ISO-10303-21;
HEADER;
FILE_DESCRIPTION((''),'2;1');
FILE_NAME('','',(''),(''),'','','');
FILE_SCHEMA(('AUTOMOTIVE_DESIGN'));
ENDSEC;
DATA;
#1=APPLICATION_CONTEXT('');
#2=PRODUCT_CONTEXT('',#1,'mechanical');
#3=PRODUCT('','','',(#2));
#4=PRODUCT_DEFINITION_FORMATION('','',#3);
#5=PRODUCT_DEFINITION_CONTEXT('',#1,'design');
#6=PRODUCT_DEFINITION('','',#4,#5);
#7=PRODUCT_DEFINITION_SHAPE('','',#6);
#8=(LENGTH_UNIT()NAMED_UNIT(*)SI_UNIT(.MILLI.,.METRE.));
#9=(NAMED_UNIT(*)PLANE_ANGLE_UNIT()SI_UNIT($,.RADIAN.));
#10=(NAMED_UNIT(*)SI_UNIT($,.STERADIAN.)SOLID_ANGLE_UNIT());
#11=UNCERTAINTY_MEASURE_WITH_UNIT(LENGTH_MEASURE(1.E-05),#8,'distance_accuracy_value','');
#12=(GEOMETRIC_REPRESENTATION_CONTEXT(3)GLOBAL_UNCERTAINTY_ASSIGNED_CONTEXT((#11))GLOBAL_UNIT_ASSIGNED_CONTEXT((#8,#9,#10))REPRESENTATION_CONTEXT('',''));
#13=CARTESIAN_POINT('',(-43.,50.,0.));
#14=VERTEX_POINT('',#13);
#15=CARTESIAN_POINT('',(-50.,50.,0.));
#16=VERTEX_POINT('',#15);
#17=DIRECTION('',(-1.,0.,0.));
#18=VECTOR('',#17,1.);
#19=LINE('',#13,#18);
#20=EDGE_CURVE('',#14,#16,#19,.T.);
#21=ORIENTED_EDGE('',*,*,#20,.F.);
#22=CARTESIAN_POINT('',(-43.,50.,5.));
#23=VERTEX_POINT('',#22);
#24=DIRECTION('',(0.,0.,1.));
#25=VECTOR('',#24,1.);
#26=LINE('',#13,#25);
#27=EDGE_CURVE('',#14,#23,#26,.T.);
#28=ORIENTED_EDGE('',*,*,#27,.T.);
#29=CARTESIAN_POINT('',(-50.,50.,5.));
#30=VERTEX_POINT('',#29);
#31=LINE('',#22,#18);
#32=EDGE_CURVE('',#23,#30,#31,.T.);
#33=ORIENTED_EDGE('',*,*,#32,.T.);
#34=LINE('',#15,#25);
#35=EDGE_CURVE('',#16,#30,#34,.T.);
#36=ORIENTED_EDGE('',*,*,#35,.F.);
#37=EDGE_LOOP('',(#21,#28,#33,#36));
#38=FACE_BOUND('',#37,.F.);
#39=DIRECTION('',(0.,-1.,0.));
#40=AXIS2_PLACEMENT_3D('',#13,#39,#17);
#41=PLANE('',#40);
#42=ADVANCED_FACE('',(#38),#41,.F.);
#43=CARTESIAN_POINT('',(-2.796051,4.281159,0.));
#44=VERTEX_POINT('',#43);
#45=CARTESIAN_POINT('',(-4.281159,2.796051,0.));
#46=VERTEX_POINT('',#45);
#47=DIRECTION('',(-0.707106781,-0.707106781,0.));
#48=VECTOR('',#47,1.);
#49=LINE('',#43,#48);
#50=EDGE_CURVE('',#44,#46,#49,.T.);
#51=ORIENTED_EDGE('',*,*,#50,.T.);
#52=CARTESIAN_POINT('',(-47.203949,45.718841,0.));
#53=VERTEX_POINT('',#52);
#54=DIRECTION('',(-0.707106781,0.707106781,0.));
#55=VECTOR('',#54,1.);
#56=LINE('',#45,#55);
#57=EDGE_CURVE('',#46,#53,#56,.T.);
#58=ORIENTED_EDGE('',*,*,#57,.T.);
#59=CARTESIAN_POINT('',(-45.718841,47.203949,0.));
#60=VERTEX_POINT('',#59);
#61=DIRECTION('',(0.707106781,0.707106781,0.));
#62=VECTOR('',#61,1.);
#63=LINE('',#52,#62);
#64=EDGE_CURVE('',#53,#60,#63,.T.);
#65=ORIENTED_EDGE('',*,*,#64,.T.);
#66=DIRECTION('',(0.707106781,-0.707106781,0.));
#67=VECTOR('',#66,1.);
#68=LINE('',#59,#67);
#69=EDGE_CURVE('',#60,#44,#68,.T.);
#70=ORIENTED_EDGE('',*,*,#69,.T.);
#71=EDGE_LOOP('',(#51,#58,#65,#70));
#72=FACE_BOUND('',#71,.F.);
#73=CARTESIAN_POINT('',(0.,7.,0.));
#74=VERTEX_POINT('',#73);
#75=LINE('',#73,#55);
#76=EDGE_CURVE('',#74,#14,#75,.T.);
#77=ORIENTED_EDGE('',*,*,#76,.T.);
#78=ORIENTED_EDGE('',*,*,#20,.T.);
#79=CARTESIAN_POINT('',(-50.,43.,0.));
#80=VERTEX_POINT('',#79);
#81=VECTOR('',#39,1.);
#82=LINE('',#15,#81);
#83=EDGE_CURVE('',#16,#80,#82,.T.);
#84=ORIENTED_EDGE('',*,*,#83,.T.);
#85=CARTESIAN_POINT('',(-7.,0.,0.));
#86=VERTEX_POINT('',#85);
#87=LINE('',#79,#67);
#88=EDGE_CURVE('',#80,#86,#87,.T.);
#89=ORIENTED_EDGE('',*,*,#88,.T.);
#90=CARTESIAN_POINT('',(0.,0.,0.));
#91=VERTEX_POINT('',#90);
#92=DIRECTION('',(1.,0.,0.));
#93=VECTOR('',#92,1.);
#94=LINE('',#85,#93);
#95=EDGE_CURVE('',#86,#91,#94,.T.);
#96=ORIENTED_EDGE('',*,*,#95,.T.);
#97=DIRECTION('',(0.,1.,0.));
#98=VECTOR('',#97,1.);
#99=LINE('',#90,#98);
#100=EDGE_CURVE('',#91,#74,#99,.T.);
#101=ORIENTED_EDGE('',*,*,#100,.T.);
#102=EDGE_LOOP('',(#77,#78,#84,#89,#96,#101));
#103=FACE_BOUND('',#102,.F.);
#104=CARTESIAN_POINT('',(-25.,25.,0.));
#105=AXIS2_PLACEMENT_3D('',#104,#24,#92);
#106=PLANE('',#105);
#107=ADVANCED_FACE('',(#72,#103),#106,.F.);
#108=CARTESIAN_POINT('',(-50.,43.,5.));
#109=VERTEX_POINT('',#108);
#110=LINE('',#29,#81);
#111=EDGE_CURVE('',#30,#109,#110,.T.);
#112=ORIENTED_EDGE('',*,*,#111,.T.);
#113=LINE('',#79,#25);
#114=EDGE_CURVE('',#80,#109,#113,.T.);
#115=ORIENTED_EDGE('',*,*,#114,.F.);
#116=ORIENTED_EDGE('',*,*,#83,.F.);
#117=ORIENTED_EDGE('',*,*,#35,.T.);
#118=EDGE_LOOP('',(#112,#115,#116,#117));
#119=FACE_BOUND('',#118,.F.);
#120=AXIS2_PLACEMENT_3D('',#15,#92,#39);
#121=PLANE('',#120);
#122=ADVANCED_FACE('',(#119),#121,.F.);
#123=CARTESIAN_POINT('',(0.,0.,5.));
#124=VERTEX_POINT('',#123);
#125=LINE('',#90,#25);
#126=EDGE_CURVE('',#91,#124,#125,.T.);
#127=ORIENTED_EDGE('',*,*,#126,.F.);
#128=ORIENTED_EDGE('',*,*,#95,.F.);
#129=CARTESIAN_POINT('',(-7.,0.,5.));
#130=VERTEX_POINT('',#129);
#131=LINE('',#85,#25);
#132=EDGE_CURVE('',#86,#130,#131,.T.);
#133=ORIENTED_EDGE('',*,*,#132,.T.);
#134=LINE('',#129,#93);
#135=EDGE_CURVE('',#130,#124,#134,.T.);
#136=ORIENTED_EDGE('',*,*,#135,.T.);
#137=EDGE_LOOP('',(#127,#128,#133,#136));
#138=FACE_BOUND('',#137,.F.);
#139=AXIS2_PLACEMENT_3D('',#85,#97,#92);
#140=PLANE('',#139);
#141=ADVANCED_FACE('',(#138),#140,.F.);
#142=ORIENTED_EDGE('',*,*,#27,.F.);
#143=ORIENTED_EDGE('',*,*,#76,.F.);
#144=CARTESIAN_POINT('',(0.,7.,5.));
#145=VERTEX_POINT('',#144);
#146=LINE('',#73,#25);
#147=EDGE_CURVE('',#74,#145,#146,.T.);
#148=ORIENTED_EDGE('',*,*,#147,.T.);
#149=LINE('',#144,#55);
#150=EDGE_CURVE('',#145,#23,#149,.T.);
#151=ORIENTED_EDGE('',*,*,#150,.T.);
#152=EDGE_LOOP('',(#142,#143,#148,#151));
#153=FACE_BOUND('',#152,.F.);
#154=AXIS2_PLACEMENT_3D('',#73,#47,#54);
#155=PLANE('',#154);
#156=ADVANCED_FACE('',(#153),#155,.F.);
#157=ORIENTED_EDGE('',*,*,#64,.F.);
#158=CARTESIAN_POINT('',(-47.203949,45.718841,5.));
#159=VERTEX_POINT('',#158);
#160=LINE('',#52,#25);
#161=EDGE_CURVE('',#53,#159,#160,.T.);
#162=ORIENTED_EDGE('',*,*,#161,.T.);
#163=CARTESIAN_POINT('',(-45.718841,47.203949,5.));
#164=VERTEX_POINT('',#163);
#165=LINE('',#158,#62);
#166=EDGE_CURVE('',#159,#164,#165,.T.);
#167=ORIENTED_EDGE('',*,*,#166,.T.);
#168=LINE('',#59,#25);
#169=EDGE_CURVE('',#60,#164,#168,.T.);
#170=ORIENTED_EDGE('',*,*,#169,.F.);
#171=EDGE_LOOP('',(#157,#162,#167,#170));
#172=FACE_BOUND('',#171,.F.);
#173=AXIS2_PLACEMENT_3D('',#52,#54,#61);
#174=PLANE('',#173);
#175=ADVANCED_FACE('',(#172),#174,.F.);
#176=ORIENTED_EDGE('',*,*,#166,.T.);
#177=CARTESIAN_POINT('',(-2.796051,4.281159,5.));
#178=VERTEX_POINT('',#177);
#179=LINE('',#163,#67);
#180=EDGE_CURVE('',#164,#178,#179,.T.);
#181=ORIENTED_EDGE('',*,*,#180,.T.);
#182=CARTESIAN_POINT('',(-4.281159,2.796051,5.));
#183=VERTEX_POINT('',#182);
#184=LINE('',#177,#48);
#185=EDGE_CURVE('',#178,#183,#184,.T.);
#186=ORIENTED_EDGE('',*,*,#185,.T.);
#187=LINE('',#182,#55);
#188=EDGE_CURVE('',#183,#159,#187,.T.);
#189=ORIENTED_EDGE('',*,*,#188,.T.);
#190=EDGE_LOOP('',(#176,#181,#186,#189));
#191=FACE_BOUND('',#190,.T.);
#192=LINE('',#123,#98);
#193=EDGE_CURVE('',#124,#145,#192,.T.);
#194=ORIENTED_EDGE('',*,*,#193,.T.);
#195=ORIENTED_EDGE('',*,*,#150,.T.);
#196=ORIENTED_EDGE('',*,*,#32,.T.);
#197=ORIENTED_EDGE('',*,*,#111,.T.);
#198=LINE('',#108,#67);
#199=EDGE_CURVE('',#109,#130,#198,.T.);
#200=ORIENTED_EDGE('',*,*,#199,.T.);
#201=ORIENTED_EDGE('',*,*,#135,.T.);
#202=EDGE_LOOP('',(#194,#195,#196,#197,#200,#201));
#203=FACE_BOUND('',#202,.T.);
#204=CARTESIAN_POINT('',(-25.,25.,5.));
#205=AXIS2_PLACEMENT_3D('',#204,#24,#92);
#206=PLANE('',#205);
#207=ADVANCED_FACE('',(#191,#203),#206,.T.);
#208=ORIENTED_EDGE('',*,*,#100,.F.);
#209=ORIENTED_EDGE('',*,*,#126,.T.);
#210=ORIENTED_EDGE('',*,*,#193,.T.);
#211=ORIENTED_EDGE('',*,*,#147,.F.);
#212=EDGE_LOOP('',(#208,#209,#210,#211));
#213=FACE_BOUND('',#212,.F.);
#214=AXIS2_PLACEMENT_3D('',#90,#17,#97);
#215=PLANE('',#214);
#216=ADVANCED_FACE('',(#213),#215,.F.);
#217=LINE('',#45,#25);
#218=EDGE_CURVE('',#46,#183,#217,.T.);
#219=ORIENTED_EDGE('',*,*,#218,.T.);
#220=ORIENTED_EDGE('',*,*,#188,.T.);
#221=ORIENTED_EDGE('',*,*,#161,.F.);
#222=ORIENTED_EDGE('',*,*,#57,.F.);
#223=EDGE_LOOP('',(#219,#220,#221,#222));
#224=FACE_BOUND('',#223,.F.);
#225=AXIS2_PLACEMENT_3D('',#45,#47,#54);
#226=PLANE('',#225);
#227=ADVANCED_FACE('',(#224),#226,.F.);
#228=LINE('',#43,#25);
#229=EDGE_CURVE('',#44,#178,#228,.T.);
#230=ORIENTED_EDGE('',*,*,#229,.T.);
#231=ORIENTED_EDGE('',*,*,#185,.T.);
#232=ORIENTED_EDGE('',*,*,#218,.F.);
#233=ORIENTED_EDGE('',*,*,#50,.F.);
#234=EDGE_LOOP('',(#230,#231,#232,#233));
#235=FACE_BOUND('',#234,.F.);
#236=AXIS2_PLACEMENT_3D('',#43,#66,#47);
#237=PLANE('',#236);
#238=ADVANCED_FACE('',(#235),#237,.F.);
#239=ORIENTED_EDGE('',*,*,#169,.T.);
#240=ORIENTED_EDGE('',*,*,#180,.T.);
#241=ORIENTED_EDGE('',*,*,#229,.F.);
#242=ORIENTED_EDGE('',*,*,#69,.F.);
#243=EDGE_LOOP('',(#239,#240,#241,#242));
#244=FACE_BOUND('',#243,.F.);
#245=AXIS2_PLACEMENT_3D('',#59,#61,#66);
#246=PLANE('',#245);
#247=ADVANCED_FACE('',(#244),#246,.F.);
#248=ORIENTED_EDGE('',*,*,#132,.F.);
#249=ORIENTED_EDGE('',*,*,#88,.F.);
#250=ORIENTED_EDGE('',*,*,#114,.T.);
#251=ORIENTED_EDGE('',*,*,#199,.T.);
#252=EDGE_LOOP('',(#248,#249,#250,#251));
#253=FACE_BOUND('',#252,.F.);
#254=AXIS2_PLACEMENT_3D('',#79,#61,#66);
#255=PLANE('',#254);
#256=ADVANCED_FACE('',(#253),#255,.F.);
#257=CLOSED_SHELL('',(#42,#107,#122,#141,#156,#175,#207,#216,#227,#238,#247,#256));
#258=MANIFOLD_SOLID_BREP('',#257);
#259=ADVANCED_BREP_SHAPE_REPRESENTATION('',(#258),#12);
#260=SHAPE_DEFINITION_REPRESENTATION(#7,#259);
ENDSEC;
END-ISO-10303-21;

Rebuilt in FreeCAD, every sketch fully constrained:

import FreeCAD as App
import Part
import Sketcher
from FreeCAD import Vector
Q = App.Units.Quantity

doc = App.newDocument("Part")
body = doc.addObject("PartDesign::Body", "Body")

# Sketch on XY plane
sketch1 = body.newObject("Sketcher::SketchObject", "Sketch")
sketch1.AttachmentSupport = (doc.getObject("XY_Plane"), [""])
sketch1.MapMode = "FlatFace"
sketch1.addGeometry([
    Part.LineSegment(Vector(-50, 50, 0), Vector(-50, 43, 0)),  # 0
    Part.LineSegment(Vector(-50, 43, 0), Vector(-7, 0, 0)),  # 1
    Part.LineSegment(Vector(-7, 0, 0), Vector(0, 0, 0)),  # 2
    Part.LineSegment(Vector(0, 0, 0), Vector(0, 7, 0)),  # 3
    Part.LineSegment(Vector(0, 7, 0), Vector(-43, 50, 0)),  # 4
    Part.LineSegment(Vector(-43, 50, 0), Vector(-50, 50, 0)),  # 5
    Part.LineSegment(Vector(-4.281159, 2.796051, 0), Vector(-47.203949, 45.718841, 0)),  # 6
    Part.LineSegment(Vector(-47.203949, 45.718841, 0), Vector(-45.718841, 47.203949, 0)),  # 7
    Part.LineSegment(Vector(-45.718841, 47.203949, 0), Vector(-2.796051, 4.281159, 0)),  # 8
    Part.LineSegment(Vector(-2.796051, 4.281159, 0), Vector(-4.281159, 2.796051, 0)),  # 9
], False)
sketch1.addConstraint([
    Sketcher.Constraint("Coincident", 0, 2, 1, 1),
    Sketcher.Constraint("Coincident", 1, 2, 2, 1),
    Sketcher.Constraint("Coincident", 2, 2, 3, 1),
    Sketcher.Constraint("Coincident", 3, 2, 4, 1),
    Sketcher.Constraint("Coincident", 4, 2, 5, 1),
    Sketcher.Constraint("Coincident", 5, 2, 0, 1),
    Sketcher.Constraint("Coincident", 6, 2, 7, 1),
    Sketcher.Constraint("Coincident", 7, 2, 8, 1),
    Sketcher.Constraint("Coincident", 8, 2, 9, 1),
    Sketcher.Constraint("Coincident", 9, 2, 6, 1),
    Sketcher.Constraint("Vertical", 0),
    Sketcher.Constraint("Horizontal", 2),
    Sketcher.Constraint("Vertical", 3),
    Sketcher.Constraint("Horizontal", 5),
    Sketcher.Constraint("Coincident", 2, 2, -1, 1),
    Sketcher.Constraint("Parallel", 1, 4),
    Sketcher.Constraint("Parallel", 4, 6),
    Sketcher.Constraint("Perpendicular", 6, 7),
    Sketcher.Constraint("Perpendicular", 7, 8),
    Sketcher.Constraint("Perpendicular", 8, 9),
    Sketcher.Constraint("Equal", 2, 5),
    Sketcher.Constraint("Equal", 5, 0),
    Sketcher.Constraint("DistanceX", 2, 1, 2, 2, Q("7 mm")),
    Sketcher.Constraint("Angle", 1, Q("-45 deg")),
    Sketcher.Constraint("DistanceX", 0, 2, -1, 1, Q("50 mm")),
    Sketcher.Constraint("DistanceX", 6, 2, 8, 2, Q("44.407898 mm")),
    Sketcher.Constraint("Distance", 6, Q("60.701992 mm")),
    Sketcher.Constraint("DistanceX", 6, 2, -1, 1, Q("47.203949 mm")),
    Sketcher.Constraint("DistanceY", -1, 1, 6, 2, Q("45.718841 mm")),
])
pad1 = body.newObject("PartDesign::Pad", "Pad")
pad1.Profile = sketch1
pad1.Length = 5

doc.recompute()
